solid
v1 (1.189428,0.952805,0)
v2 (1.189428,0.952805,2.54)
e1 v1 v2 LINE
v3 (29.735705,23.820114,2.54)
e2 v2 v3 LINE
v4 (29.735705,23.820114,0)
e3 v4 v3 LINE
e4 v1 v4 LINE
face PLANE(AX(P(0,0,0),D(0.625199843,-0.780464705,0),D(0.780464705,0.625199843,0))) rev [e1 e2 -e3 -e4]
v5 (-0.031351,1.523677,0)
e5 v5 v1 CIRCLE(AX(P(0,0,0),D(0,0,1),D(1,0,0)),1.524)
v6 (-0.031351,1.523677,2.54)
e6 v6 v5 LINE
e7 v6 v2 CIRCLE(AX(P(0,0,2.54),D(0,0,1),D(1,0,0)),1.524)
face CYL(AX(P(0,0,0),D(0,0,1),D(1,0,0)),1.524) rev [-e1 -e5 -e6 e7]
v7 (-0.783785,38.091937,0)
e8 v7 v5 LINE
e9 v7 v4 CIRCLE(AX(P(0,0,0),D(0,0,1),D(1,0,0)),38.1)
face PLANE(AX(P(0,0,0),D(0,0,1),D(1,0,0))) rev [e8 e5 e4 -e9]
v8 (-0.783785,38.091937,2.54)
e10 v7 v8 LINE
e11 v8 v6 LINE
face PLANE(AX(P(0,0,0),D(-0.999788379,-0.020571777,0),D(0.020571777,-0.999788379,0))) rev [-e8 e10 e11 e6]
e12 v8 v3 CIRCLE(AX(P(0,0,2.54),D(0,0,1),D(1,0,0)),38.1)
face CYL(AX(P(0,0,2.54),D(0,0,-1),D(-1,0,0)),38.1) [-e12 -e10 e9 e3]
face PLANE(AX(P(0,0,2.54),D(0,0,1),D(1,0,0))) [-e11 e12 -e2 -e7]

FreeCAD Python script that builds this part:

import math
import FreeCAD as App
import Part
import Sketcher
from FreeCAD import Vector
Q = App.Units.Quantity

doc = App.newDocument("Part")
body = doc.addObject("PartDesign::Body", "Body")

# Sketch on XY plane
sketch1 = body.newObject("Sketcher::SketchObject", "Sketch")
sketch1.AttachmentSupport = (doc.getObject("XY_Plane"), [""])
sketch1.MapMode = "FlatFace"
sketch1.addGeometry(Part.Circle(Vector(0, 0, 0), Vector(0, 0, 1), 38), False)
sketch1.addConstraint(Sketcher.Constraint("Coincident", 0, 3, -1, 1))
sketch1.addConstraint(Sketcher.Constraint("Diameter", 0, Q("3 in")))
pad1 = body.newObject("PartDesign::Pad", "Pad")
pad1.Profile = sketch1
pad1.Length = Q("0.1 in")

# Sketch on XY plane
sketch2 = body.newObject("Sketcher::SketchObject", "Sketch001")
sketch2.AttachmentSupport = (doc.getObject("XY_Plane"), [""])
sketch2.MapMode = "FlatFace"
sketch2.AttachmentOffset = App.Placement(Vector(0, 0, 0.1 * 25.4), App.Rotation())
sketch2.addGeometry(Part.LineSegment(Vector(-1, 38, 0), Vector(0, 0, 0)), False)
sketch2.addGeometry(Part.LineSegment(Vector(0, 0, 0), Vector(30, 24, 0)), False)
sketch2.addGeometry(Part.ArcOfCircle(Part.Circle(Vector(0, 0, 0), Vector(0, 0, 1), 38), math.radians(39), math.radians(91)), False)
sketch2.addConstraint(Sketcher.Constraint("Coincident", 0, 2, 1, 1))
sketch2.addConstraint(Sketcher.Constraint("Coincident", 1, 2, 2, 1))
sketch2.addConstraint(Sketcher.Constraint("Coincident", 2, 2, 0, 1))
sketch2.addConstraint(Sketcher.Constraint("Coincident", 2, 3, -1, 1))
sketch2.addConstraint(Sketcher.Constraint("Coincident", 0, 2, -1, 1))
sketch2.addConstraint(Sketcher.Constraint("Radius", 2, Q("1.5 in")))
sketch2.addConstraint(Sketcher.Constraint("DistanceX", 2, 2, 1, 2, Q("30.51949 mm")))
sketch2.addConstraint(Sketcher.Constraint("DistanceX", -1, 1, 1, 2, Q("29.735705 mm")))
pocket1 = body.newObject("PartDesign::Pocket", "Pocket")
pocket1.Profile = sketch2
pocket1.Length = Q("0.1 in")

# Sketch on XY plane
sketch3 = body.newObject("Sketcher::SketchObject", "Sketch002")
sketch3.AttachmentSupport = (doc.getObject("XY_Plane"), [""])
sketch3.MapMode = "FlatFace"
sketch3.AttachmentOffset = App.Placement(Vector(0, 0, 0.1 * 25.4), App.Rotation())
sketch3.addGeometry(Part.Circle(Vector(0, 0, 0), Vector(0, 0, 1), 1.5), False)
sketch3.addConstraint(Sketcher.Constraint("Coincident", 0, 3, -1, 1))
sketch3.addConstraint(Sketcher.Constraint("Diameter", 0, Q("0.12 in")))
pocket2 = body.newObject("PartDesign::Pocket", "Pocket001")
pocket2.Profile = sketch3
pocket2.Length = Q("0.1 in")

doc.recompute()
